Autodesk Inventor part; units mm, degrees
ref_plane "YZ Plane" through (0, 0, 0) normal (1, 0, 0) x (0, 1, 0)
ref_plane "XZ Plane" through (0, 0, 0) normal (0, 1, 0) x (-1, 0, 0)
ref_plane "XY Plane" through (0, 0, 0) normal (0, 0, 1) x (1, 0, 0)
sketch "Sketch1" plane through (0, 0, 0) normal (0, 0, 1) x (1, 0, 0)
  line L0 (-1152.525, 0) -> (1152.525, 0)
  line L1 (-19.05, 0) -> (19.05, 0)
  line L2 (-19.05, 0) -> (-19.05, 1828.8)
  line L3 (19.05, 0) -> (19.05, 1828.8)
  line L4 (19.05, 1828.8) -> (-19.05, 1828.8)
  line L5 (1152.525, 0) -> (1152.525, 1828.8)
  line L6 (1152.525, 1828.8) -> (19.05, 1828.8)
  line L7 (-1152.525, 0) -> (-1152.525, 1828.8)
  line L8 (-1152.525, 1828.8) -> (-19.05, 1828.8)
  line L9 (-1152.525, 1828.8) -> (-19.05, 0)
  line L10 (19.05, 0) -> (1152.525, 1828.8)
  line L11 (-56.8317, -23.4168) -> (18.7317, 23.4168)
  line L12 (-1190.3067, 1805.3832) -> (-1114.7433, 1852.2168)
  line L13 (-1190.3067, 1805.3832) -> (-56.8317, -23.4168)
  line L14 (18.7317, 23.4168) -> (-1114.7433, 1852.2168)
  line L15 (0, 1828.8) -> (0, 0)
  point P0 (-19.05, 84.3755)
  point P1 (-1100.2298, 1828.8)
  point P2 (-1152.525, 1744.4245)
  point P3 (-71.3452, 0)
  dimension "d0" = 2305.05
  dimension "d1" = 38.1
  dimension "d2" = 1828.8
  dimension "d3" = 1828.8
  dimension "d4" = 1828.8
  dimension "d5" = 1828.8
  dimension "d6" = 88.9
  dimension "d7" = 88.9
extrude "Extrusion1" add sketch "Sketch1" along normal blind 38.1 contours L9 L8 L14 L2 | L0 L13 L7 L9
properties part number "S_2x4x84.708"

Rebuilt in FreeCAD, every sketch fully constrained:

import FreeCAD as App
import Part
import Sketcher

V = App.Vector
Q = App.Units.Quantity

doc = App.newDocument("Part")
body = doc.addObject("PartDesign::Body", "Body")

sketch1 = doc.addObject("Sketcher::SketchObject", "Sketch")
body.addObject(sketch1)
sketch1.AttachmentSupport = (doc.XY_Plane, [""])
sketch1.MapMode = "FlatFace"
sketch1.addGeometry([
    Part.LineSegment(V(-1100, 1829, 0), V(-1153, 1829, 0)),
    Part.LineSegment(V(-1153, 1829, 0), V(-1153, 1744, 0)),
    Part.LineSegment(V(-1153, 1744, 0), V(-71, 0, 0)),
    Part.LineSegment(V(-71, 0, 0), V(-19, 0, 0)),
    Part.LineSegment(V(-19, 0, 0), V(-19, 84, 0)),
    Part.LineSegment(V(-19, 84, 0), V(-1100, 1829, 0)),
], False)
sketch1.addConstraint([
    Sketcher.Constraint("Coincident", 0, 2, 1, 1),
    Sketcher.Constraint("Coincident", 1, 2, 2, 1),
    Sketcher.Constraint("Coincident", 2, 2, 3, 1),
    Sketcher.Constraint("Coincident", 3, 2, 4, 1),
    Sketcher.Constraint("Coincident", 4, 2, 5, 1),
    Sketcher.Constraint("Coincident", 5, 2, 0, 1),
    Sketcher.Constraint("Horizontal", 0),
    Sketcher.Constraint("Vertical", 1),
    Sketcher.Constraint("Horizontal", 3),
    Sketcher.Constraint("Vertical", 4),
    Sketcher.Constraint("PointOnObject", 2, 2, -1),
    Sketcher.Constraint("Parallel", 2, 5),
    Sketcher.Constraint("Equal", 0, 3),
    Sketcher.Constraint("DistanceY", -1, 1, 0, 2, Q("72 in")),
    Sketcher.Constraint("DistanceX", 3, 2, -1, 1, Q("0.75 in")),
    Sketcher.Constraint("Angle", 2, Q("-58.2097 deg")),
    Sketcher.Constraint("DistanceX", 0, 2, -1, 1, Q("45.375 in")),
    Sketcher.Constraint("Distance", 2, Q("80.7995 in")),
])
pad1 = doc.addObject("PartDesign::Pad", "Pad")
body.addObject(pad1)
pad1.Profile = sketch1
pad1.Length = Q("1.5 in")

doc.recompute()
